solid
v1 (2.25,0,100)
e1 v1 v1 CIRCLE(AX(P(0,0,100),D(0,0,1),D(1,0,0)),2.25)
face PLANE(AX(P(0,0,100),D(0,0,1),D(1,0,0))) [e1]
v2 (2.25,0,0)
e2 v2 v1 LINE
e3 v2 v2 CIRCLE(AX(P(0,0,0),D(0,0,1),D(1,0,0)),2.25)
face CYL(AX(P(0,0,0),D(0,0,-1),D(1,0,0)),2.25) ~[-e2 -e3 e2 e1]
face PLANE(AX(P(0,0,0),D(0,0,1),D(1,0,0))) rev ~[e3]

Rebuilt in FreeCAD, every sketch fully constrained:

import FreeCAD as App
import Part
import Sketcher

V = App.Vector

doc = App.newDocument("Part")
body = doc.addObject("PartDesign::Body", "Body")

# Sketch on XY plane
sketch1 = doc.addObject("Sketcher::SketchObject", "Sketch")
body.addObject(sketch1)
sketch1.AttachmentSupport = (doc.XY_Plane, [""])
sketch1.MapMode = "FlatFace"
sketch1.addGeometry(Part.Circle(V(0, 0, 0), V(0, 0, 1), 2.2), False)
sketch1.addConstraint([
    Sketcher.Constraint("Coincident", 0, 3, -1, 1),
    Sketcher.Constraint("Diameter", 0, 4.5),
])
pad1 = doc.addObject("PartDesign::Pad", "Pad")
body.addObject(pad1)
pad1.Profile = sketch1
pad1.Length = 100

doc.recompute()
